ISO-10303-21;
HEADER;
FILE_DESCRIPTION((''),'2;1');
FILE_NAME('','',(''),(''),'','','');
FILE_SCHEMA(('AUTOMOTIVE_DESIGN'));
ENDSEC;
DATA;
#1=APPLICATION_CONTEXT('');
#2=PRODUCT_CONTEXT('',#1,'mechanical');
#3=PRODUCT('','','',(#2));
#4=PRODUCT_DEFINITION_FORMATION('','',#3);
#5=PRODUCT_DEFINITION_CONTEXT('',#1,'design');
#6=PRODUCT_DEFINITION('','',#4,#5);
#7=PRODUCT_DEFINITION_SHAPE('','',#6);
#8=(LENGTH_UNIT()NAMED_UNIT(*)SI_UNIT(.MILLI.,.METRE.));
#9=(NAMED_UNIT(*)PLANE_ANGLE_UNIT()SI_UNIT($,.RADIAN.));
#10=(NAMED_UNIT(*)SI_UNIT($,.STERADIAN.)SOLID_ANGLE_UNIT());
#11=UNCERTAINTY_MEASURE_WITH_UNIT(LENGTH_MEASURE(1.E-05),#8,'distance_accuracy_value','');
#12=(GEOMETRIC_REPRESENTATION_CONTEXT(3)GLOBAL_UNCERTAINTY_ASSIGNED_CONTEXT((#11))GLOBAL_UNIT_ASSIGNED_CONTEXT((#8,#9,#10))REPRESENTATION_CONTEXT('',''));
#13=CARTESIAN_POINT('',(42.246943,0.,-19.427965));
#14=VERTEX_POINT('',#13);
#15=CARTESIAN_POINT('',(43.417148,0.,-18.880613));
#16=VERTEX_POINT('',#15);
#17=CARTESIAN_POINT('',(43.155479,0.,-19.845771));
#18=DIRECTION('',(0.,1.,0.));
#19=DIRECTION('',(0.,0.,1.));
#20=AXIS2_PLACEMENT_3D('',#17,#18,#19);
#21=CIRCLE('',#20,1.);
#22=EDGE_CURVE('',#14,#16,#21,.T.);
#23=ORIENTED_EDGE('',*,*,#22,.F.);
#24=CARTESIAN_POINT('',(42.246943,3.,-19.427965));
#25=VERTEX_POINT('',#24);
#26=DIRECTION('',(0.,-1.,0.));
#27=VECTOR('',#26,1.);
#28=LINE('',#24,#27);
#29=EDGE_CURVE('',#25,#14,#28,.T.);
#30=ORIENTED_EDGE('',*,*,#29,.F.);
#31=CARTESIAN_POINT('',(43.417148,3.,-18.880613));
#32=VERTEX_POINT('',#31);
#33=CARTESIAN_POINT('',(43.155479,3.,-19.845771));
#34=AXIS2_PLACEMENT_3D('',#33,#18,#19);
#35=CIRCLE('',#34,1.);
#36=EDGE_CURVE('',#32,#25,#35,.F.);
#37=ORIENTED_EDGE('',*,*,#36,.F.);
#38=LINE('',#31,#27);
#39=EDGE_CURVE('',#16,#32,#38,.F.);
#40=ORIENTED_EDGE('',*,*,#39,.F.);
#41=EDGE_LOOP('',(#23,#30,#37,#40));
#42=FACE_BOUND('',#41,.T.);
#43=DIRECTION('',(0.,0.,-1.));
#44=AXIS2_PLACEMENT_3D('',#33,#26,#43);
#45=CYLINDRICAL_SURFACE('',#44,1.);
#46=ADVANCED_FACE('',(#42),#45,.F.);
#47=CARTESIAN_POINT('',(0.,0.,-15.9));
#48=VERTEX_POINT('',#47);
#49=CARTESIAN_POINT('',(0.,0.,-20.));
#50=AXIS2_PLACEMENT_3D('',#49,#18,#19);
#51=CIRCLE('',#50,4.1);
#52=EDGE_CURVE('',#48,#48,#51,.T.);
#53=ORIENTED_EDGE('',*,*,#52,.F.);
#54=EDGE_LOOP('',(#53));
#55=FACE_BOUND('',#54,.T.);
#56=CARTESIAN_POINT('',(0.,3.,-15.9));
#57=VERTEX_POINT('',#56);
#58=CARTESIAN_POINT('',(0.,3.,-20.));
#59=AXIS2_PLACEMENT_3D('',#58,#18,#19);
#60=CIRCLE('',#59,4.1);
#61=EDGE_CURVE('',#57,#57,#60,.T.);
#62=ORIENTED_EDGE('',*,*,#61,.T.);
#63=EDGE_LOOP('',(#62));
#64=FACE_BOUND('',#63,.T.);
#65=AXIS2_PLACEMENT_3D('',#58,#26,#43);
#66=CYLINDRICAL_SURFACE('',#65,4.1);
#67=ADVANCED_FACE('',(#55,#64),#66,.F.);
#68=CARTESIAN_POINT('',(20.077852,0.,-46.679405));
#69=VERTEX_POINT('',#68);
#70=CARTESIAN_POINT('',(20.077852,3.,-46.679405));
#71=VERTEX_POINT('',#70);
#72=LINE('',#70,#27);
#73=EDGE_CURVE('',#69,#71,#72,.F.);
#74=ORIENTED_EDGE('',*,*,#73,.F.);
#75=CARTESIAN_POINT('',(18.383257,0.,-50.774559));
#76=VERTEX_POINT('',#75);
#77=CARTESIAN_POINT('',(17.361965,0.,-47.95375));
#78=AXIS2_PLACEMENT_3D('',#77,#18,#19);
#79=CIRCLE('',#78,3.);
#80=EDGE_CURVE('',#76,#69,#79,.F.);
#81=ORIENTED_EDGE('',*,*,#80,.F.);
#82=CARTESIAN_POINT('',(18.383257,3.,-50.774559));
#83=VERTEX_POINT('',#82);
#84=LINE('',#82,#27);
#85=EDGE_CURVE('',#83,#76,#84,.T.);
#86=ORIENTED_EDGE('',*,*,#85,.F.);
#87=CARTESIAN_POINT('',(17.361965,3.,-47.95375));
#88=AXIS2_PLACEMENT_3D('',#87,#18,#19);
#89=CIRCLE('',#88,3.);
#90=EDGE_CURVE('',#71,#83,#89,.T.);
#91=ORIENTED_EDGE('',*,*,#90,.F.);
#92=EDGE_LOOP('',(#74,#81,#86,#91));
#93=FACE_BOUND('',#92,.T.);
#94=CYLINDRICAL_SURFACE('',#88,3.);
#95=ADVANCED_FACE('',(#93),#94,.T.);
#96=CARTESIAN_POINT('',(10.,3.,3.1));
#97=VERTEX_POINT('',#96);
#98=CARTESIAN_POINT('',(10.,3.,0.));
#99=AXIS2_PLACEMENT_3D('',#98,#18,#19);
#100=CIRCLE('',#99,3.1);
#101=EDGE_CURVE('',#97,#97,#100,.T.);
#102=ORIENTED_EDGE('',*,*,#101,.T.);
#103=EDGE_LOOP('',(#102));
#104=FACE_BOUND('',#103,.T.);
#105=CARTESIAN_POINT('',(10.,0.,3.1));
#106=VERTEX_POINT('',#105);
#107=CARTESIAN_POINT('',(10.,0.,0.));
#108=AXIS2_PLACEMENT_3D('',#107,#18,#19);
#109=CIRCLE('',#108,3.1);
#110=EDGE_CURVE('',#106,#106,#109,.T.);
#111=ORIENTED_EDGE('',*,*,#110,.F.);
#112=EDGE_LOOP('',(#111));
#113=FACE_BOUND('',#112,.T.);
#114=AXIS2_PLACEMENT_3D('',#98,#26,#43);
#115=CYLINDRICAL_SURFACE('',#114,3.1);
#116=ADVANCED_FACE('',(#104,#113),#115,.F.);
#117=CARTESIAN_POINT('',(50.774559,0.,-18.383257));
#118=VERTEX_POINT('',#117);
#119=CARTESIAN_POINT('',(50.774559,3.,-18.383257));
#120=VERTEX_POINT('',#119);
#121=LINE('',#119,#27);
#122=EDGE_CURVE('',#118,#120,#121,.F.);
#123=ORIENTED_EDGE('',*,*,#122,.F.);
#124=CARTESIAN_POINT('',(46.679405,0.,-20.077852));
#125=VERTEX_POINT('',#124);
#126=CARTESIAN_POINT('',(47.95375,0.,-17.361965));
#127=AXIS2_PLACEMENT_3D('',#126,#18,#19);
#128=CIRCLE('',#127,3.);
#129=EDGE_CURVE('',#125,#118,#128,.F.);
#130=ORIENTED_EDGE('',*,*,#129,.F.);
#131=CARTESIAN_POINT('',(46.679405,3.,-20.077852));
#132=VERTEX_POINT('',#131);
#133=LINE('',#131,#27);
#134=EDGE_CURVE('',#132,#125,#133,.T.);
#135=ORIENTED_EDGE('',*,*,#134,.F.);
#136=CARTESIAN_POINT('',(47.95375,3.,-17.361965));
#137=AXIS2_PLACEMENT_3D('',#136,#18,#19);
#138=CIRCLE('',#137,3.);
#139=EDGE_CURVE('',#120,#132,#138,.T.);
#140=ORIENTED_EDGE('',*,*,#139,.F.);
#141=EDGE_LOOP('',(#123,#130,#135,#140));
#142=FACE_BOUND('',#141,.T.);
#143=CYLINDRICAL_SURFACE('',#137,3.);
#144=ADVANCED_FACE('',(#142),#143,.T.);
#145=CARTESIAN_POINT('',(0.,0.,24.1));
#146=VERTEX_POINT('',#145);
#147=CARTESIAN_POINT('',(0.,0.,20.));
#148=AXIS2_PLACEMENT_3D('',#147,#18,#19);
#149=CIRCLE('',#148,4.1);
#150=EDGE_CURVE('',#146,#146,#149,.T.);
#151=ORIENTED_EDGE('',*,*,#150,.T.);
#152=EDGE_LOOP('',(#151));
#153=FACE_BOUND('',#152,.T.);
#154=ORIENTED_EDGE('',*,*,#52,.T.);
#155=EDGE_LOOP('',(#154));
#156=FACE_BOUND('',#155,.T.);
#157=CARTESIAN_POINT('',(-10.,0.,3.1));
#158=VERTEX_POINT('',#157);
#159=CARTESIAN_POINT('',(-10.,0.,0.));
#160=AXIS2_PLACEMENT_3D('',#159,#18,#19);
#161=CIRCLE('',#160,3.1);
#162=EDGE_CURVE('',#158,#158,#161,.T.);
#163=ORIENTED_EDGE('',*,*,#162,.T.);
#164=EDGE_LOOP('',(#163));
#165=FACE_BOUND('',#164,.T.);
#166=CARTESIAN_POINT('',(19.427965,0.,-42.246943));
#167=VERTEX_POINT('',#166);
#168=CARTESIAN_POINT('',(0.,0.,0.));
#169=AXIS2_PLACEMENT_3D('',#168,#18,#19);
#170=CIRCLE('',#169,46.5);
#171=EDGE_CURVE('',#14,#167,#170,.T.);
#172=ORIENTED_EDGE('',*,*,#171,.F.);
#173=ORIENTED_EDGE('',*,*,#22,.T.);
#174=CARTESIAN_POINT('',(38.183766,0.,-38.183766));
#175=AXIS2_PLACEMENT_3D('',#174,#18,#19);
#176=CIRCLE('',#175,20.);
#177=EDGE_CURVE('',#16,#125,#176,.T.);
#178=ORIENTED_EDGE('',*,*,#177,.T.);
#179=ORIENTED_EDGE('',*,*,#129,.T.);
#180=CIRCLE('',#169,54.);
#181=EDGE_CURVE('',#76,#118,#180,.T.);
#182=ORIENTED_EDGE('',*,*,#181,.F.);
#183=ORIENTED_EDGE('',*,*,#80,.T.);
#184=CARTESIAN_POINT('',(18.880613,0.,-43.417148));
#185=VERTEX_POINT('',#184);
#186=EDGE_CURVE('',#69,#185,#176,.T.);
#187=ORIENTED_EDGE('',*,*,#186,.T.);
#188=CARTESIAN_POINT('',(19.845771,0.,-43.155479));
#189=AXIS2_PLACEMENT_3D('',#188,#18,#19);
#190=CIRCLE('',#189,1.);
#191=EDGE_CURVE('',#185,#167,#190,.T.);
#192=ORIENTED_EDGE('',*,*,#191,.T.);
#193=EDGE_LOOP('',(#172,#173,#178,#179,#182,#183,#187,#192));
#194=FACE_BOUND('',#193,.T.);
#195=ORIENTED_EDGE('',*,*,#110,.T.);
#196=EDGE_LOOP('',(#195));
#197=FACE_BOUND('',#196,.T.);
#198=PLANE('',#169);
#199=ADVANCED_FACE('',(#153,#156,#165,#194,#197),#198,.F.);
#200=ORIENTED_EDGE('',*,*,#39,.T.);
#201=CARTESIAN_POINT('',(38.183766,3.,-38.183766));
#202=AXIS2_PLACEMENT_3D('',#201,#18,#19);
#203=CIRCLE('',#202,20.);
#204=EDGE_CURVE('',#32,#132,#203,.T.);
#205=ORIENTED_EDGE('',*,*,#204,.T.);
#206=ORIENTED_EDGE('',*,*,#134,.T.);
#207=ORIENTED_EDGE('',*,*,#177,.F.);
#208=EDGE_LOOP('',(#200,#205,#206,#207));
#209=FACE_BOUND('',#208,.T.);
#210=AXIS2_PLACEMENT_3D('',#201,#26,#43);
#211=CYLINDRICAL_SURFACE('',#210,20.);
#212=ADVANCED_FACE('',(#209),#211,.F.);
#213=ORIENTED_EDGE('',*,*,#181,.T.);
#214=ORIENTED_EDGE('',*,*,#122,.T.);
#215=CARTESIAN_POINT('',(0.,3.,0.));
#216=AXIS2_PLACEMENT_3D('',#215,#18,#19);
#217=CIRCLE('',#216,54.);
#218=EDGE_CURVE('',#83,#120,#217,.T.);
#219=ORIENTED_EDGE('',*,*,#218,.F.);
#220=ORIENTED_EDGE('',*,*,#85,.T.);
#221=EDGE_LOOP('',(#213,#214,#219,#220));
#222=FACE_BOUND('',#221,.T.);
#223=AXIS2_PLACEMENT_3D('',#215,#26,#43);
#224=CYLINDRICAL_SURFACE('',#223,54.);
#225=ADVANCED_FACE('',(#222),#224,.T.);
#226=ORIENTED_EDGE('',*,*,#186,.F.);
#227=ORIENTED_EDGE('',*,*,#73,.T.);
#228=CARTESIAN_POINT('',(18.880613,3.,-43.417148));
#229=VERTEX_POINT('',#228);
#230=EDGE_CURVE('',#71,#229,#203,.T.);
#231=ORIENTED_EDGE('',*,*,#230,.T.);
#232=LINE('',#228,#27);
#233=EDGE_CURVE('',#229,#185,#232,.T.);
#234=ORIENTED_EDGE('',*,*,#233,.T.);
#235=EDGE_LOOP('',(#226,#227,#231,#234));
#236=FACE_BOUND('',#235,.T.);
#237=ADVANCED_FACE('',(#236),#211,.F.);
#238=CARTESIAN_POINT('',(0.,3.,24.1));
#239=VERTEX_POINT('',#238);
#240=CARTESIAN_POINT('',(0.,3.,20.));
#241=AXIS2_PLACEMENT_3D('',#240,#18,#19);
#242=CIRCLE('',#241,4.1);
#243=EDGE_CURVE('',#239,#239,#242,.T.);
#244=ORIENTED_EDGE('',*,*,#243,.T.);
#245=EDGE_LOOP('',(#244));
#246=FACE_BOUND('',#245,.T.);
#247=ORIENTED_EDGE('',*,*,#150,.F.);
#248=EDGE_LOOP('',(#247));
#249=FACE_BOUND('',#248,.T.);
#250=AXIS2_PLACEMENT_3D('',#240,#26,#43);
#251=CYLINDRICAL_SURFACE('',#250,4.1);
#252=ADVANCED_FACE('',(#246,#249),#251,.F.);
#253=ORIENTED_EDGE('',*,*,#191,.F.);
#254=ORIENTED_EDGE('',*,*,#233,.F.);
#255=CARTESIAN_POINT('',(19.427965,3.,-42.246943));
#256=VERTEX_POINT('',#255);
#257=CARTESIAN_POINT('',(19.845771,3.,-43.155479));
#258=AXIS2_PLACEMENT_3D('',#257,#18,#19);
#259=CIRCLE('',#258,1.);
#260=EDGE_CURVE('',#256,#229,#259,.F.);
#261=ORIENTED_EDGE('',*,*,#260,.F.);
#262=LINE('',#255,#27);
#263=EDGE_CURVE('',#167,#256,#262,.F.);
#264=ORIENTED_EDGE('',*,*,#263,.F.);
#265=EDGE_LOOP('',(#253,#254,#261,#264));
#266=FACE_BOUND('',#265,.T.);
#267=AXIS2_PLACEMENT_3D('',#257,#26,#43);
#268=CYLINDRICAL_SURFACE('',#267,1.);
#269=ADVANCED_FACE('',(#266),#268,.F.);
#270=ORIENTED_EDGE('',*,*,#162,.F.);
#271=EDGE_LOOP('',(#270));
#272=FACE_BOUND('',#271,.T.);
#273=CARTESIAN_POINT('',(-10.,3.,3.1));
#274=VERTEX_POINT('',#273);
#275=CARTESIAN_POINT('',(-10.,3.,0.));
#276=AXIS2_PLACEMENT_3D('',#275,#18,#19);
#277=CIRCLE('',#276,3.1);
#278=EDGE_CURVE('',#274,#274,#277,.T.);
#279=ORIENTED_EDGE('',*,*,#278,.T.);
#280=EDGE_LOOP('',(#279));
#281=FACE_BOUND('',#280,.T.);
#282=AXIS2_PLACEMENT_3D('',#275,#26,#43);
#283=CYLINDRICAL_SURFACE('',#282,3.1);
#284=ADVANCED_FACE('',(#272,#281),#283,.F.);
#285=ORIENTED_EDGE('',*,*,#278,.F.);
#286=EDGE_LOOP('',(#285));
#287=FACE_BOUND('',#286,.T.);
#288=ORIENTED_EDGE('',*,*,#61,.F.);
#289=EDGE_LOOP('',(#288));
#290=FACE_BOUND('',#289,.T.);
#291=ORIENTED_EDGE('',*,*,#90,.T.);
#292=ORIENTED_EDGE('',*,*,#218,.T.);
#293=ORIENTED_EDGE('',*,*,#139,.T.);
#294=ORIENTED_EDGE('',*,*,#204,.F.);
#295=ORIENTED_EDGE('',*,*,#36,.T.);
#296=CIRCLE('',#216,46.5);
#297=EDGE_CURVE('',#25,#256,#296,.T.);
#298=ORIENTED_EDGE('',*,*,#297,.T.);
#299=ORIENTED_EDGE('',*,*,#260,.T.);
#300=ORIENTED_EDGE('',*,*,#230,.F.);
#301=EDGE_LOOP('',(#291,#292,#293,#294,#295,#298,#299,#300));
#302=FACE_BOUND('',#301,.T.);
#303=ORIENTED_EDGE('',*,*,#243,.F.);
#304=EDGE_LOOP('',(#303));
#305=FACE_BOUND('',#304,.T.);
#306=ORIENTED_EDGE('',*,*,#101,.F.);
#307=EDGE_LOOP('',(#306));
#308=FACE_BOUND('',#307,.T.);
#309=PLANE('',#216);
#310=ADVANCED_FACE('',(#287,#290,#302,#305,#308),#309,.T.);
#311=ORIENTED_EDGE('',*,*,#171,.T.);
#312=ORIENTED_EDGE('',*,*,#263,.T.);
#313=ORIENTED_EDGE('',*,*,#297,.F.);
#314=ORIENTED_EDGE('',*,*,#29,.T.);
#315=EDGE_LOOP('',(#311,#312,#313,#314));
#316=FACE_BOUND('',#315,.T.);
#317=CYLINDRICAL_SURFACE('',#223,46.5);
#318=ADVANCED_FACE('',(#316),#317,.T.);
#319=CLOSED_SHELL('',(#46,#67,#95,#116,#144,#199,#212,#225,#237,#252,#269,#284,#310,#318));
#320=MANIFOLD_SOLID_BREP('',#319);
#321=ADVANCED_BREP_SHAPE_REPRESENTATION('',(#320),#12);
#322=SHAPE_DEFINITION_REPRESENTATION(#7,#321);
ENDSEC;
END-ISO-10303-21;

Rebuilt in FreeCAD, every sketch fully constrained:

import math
import FreeCAD as App
import Part
import Sketcher


def edges_at(feature, points):
    """Names of the edges that pass closest to the given points."""
    edges = feature.Shape.Edges
    near = lambda p: min(range(len(edges)), key=lambda i: edges[i].distToShape(Part.Vertex(*p))[0])
    return sorted({f"Edge{near(p) + 1}" for p in points})

doc = App.newDocument("Part")
body = doc.addObject("PartDesign::Body", "Body")

# Sketch on XZ plane
sketch1 = body.newObject("Sketcher::SketchObject", "Sketch")
sketch1.AttachmentSupport = (doc.getObject("XZ_Plane"), [""])
sketch1.MapMode = "FlatFace"
sketch1.addGeometry([
    Part.ArcOfCircle(Part.Circle(App.Vector(0, 0, 0), App.Vector(0, 0, 1), 54), math.radians(-23.656141), math.radians(293.656141)),  # 0
    Part.ArcOfCircle(Part.Circle(App.Vector(38.183766, -38.183766, 0), App.Vector(0, 0, 1), 20), math.radians(55.671929), math.radians(77.285846)),  # 1
    Part.ArcOfCircle(Part.Circle(App.Vector(0, 0, 0), App.Vector(0, 0, 1), 46.5), math.radians(-66.32208), math.radians(-23.67792)),  # 2
    Part.ArcOfCircle(Part.Circle(App.Vector(38.183766, -38.183766, 0), App.Vector(0, 0, 1), 20), math.radians(-167.285846), math.radians(-145.671929)),  # 3
    Part.Circle(App.Vector(0, 20, 0), App.Vector(0, 0, 1), 4.1),  # 4
    Part.Circle(App.Vector(-10, 0, 0), App.Vector(0, 0, 1), 3.1),  # 5
    Part.Circle(App.Vector(10, 0, 0), App.Vector(0, 0, 1), 3.1),  # 6
    Part.Circle(App.Vector(0, -20, 0), App.Vector(0, 0, 1), 4.1),  # 7
], False)
sketch1.addConstraint([
    Sketcher.Constraint("Coincident", 0, 1, 1, 1),
    Sketcher.Constraint("Coincident", 1, 2, 2, 2),
    Sketcher.Constraint("Coincident", 2, 1, 3, 1),
    Sketcher.Constraint("Coincident", 3, 2, 0, 2),
    Sketcher.Constraint("Coincident", 0, 3, -1, 1),
    Sketcher.Constraint("Coincident", 2, 3, -1, 1),
    Sketcher.Constraint("Coincident", 3, 3, 1, 3),
    Sketcher.Constraint("Equal", 1, 3),
    Sketcher.Constraint("Equal", 5, 6),
    Sketcher.Constraint("Equal", 4, 7),
    Sketcher.Constraint("Symmetric", 5, 3, 6, 3, -1, 1),
    Sketcher.Constraint("Symmetric", 4, 3, 7, 3, -1, 1),
    Sketcher.Constraint("PointOnObject", 4, 3, -2),
    Sketcher.Constraint("PointOnObject", 5, 3, -1),
    Sketcher.Constraint("Radius", 0, 54.0),
    Sketcher.Constraint("Radius", 1, 20.0),
    Sketcher.Constraint("Diameter", 4, 8.2),
    Sketcher.Constraint("Diameter", 5, 6.2),
    Sketcher.Constraint("Radius", 2, 46.5),
    Sketcher.Constraint("DistanceY", -1, 1, 4, 3, 20.0),
    Sketcher.Constraint("DistanceX", 5, 3, -1, 1, 10.0),
    Sketcher.Constraint("DistanceX", -1, 1, 0, 1, 49.46238),
    Sketcher.Constraint("DistanceX", -1, 1, 1, 2, 42.58551),
])
pad1 = body.newObject("PartDesign::Pad", "Pad")
pad1.Profile = sketch1
pad1.Length = 3
pad1.Reversed = True
doc.recompute()

fillet = body.newObject("PartDesign::Fillet", "Fillet")
fillet.Base = (pad1, edges_at(pad1, [(49.462, 1.5, -21.667), (21.667, 1.5, -49.462)]))
fillet.Radius = 3
doc.recompute()

fillet2 = body.newObject("PartDesign::Fillet", "Fillet001")
fillet2.Base = (fillet, edges_at(fillet, [(18.674, 1.5, -42.586), (42.586, 1.5, -18.674)]))
fillet2.Radius = 1

doc.recompute()
